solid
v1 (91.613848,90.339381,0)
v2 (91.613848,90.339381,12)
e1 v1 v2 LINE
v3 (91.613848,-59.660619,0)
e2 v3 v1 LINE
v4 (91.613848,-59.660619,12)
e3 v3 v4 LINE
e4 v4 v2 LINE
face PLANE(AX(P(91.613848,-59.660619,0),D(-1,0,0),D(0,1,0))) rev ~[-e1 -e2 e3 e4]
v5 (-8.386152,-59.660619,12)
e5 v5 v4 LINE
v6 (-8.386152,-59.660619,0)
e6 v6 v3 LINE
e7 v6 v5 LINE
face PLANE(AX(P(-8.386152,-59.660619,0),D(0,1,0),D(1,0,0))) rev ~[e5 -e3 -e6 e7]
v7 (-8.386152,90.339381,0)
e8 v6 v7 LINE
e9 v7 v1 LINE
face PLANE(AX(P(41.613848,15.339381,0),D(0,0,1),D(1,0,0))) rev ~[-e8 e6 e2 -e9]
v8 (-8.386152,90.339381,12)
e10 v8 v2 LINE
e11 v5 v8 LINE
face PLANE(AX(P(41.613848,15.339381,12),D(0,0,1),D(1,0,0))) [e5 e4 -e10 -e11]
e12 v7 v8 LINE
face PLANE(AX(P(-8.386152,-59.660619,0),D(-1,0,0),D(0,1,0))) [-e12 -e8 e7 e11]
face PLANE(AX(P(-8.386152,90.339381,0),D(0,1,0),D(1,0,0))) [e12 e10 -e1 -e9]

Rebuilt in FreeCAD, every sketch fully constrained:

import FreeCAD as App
import Part
import Sketcher

V = App.Vector


def add_polygon(sketch, points):
    """Adds a closed chain of lines whose ends are joined by coincident constraints."""
    first, n = sketch.GeometryCount, len(points)
    for a, b in zip(points, points[1:] + points[:1]):
        sketch.addGeometry(Part.LineSegment(App.Vector(*a, 0), App.Vector(*b, 0)), False)
    for i in range(n):
        sketch.addConstraint(Sketcher.Constraint("Coincident", first + i, 2, first + (i + 1) % n, 1))

doc = App.newDocument("Part")
body = doc.addObject("PartDesign::Body", "Body")

# Sketch on XY plane
sketch1 = body.newObject("Sketcher::SketchObject", "Sketch")
sketch1.AttachmentSupport = (doc.getObject("XY_Plane"), [""])
sketch1.MapMode = "FlatFace"
add_polygon(sketch1, [(-8, 90), (-8, -60), (92, -60), (92, 90)])  # lines 0-3
sketch1.addConstraint(Sketcher.Constraint("Vertical", 0))
sketch1.addConstraint(Sketcher.Constraint("Horizontal", 1))
sketch1.addConstraint(Sketcher.Constraint("Vertical", 2))
sketch1.addConstraint(Sketcher.Constraint("Horizontal", 3))
sketch1.addConstraint(Sketcher.Constraint("DistanceX", 1, 1, 1, 2, 100.0))
sketch1.addConstraint(Sketcher.Constraint("DistanceY", 0, 2, 0, 1, 150.0))
sketch1.addConstraint(Sketcher.Constraint("DistanceX", 0, 2, -1, 1, 8.386152))
sketch1.addConstraint(Sketcher.Constraint("DistanceY", 0, 2, -1, 1, 59.660619))
pad1 = body.newObject("PartDesign::Pad", "Pad")
pad1.Profile = sketch1
pad1.Length = 12

doc.recompute()
